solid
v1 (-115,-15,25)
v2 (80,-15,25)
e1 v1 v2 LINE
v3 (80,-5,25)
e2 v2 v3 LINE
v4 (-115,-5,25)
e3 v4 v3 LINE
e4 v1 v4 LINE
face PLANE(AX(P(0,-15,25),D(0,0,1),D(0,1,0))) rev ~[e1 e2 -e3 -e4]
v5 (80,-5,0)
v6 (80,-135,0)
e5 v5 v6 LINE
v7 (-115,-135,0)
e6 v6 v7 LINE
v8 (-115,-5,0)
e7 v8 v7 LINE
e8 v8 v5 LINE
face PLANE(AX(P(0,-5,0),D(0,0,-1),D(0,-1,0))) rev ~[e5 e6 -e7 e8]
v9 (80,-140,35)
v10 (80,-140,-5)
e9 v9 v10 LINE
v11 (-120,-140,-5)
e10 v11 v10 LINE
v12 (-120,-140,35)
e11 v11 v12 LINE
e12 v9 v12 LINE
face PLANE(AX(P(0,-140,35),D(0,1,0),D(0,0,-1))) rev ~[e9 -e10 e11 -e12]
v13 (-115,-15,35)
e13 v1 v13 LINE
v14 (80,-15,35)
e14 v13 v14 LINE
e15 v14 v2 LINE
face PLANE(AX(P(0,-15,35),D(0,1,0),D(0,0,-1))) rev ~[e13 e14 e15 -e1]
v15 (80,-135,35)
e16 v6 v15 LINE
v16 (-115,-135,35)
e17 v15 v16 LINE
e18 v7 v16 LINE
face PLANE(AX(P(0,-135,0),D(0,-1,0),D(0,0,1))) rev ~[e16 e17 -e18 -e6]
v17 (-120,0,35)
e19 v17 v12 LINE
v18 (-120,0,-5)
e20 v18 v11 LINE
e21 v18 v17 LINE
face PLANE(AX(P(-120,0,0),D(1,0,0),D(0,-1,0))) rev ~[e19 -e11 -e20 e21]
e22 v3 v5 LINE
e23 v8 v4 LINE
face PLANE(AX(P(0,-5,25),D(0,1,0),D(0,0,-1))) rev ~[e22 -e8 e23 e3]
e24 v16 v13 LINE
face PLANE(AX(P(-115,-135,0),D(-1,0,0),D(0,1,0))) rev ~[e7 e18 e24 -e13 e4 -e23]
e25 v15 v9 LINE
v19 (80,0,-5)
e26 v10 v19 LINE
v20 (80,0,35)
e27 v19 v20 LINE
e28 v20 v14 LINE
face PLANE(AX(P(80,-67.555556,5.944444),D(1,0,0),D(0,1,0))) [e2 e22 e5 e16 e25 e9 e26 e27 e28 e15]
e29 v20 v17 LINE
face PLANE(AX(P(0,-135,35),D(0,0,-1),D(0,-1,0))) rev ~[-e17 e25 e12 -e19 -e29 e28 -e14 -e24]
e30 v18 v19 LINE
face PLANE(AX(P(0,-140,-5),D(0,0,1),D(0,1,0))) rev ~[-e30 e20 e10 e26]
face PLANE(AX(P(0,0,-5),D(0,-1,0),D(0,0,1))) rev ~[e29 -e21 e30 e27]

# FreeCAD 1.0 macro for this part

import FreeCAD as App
import Part
import Sketcher
Q = App.Units.Quantity


def add_polygon(sketch, points):
    """Adds a closed chain of lines whose ends are joined by coincident constraints."""
    first, n = sketch.GeometryCount, len(points)
    for a, b in zip(points, points[1:] + points[:1]):
        sketch.addGeometry(Part.LineSegment(App.Vector(*a, 0), App.Vector(*b, 0)), False)
    for i in range(n):
        sketch.addConstraint(Sketcher.Constraint("Coincident", first + i, 2, first + (i + 1) % n, 1))

doc = App.newDocument("Part")
body = doc.addObject("PartDesign::Body", "Body")

# Sketch on XY plane
sketch1 = doc.addObject("Sketcher::SketchObject", "Sketch")
body.addObject(sketch1)
sketch1.AttachmentSupport = (doc.XY_Plane, [""])
sketch1.MapMode = "FlatFace"
add_polygon(sketch1, [(0, 0), (-120, 0), (-120, -140), (0, -140)])  # lines 0-3
sketch1.addConstraint([
    Sketcher.Constraint("Horizontal", 0),
    Sketcher.Constraint("Vertical", 1),
    Sketcher.Constraint("Horizontal", 2),
    Sketcher.Constraint("Vertical", 3),
    Sketcher.Constraint("Coincident", 3, 2, -1, 1),
    Sketcher.Constraint("DistanceX", 0, 2, 0, 1, Q("120 mm")),
    Sketcher.Constraint("DistanceY", 1, 2, 1, 1, Q("140 mm")),
])
pad1 = doc.addObject("PartDesign::Pad", "Pad")
body.addObject(pad1)
pad1.Profile = sketch1
pad1.Length = 5
pad1.Reversed = True

# Sketch on XY plane
sketch2 = doc.addObject("Sketcher::SketchObject", "Sketch001")
body.addObject(sketch2)
sketch2.AttachmentSupport = (doc.XY_Plane, [""])
sketch2.MapMode = "FlatFace"
add_polygon(sketch2, [(-115, -15), (0, -15), (0, 0), (-120, 0), (-120, -140), (0, -140), (0, -135), (-115, -135)])  # lines 0-7
sketch2.addConstraint([
    Sketcher.Constraint("Horizontal", 0),
    Sketcher.Constraint("Vertical", 1),
    Sketcher.Constraint("Horizontal", 2),
    Sketcher.Constraint("Vertical", 3),
    Sketcher.Constraint("Horizontal", 4),
    Sketcher.Constraint("Vertical", 5),
    Sketcher.Constraint("Horizontal", 6),
    Sketcher.Constraint("Vertical", 7),
    Sketcher.Constraint("Coincident", 1, 2, -1, 1),
    Sketcher.Constraint("PointOnObject", 4, 2, -2),
    Sketcher.Constraint("Equal", 4, 7),
    Sketcher.Constraint("DistanceX", 0, 1, 0, 2, Q("115 mm")),
    Sketcher.Constraint("DistanceX", 2, 2, 2, 1, Q("120 mm")),
    Sketcher.Constraint("DistanceY", 1, 1, 1, 2, Q("15 mm")),
    Sketcher.Constraint("DistanceY", 3, 2, 3, 1, Q("140 mm")),
])
pad2 = doc.addObject("PartDesign::Pad", "Pad001")
body.addObject(pad2)
pad2.Profile = sketch2
pad2.Length = 35

# Sketch on XY plane
sketch3 = doc.addObject("Sketcher::SketchObject", "Sketch002")
body.addObject(sketch3)
sketch3.AttachmentSupport = (doc.XY_Plane, [""])
sketch3.MapMode = "FlatFace"
add_polygon(sketch3, [(-115, -5), (-115, -15), (0, -15), (0, -5)])  # lines 0-3
sketch3.addConstraint([
    Sketcher.Constraint("Vertical", 0),
    Sketcher.Constraint("Horizontal", 1),
    Sketcher.Constraint("Vertical", 2),
    Sketcher.Constraint("Horizontal", 3),
    Sketcher.Constraint("PointOnObject", 1, 2, -2),
    Sketcher.Constraint("DistanceX", 1, 1, 1, 2, Q("115 mm")),
    Sketcher.Constraint("DistanceY", 0, 2, 0, 1, Q("10 mm")),
    Sketcher.Constraint("DistanceY", 0, 2, -1, 1, Q("15 mm")),
])
pocket1 = doc.addObject("PartDesign::Pocket", "Pocket")
body.addObject(pocket1)
pocket1.Profile = sketch3
pocket1.Length = 25
pocket1.Reversed = True

# Sketch on YZ plane
sketch4 = doc.addObject("Sketcher::SketchObject", "Sketch003")
body.addObject(sketch4)
sketch4.AttachmentSupport = (doc.YZ_Plane, [""])
sketch4.MapMode = "FlatFace"
add_polygon(sketch4, [(-140, 35), (-140, -5), (0, -5), (0, 35), (-15, 35), (-15, 25), (-5, 25), (-5, 0), (-135, 0), (-135, 35)])  # lines 0-9
sketch4.addConstraint([
    Sketcher.Constraint("Vertical", 0),
    Sketcher.Constraint("Horizontal", 1),
    Sketcher.Constraint("Vertical", 2),
    Sketcher.Constraint("Horizontal", 3),
    Sketcher.Constraint("Vertical", 4),
    Sketcher.Constraint("Horizontal", 5),
    Sketcher.Constraint("Vertical", 6),
    Sketcher.Constraint("Horizontal", 7),
    Sketcher.Constraint("Vertical", 8),
    Sketcher.Constraint("Horizontal", 9),
    Sketcher.Constraint("PointOnObject", 1, 2, -2),
    Sketcher.Constraint("PointOnObject", 6, 2, -1),
    Sketcher.Constraint("Horizontal", 3, 2, 8, 2),
    Sketcher.Constraint("Equal", 5, 4),
    Sketcher.Constraint("DistanceX", 1, 1, 1, 2, Q("140 mm")),
    Sketcher.Constraint("DistanceX", 3, 2, 3, 1, Q("15 mm")),
    Sketcher.Constraint("DistanceX", 5, 1, 5, 2, Q("10 mm")),
    Sketcher.Constraint("DistanceX", 7, 2, 7, 1, Q("130 mm")),
    Sketcher.Constraint("DistanceY", 0, 2, 0, 1, Q("40 mm")),
    Sketcher.Constraint("DistanceY", 6, 2, 6, 1, Q("25 mm")),
])
pad3 = doc.addObject("PartDesign::Pad", "Pad002")
body.addObject(pad3)
pad3.Profile = sketch4
pad3.Length = 80

doc.recompute()
